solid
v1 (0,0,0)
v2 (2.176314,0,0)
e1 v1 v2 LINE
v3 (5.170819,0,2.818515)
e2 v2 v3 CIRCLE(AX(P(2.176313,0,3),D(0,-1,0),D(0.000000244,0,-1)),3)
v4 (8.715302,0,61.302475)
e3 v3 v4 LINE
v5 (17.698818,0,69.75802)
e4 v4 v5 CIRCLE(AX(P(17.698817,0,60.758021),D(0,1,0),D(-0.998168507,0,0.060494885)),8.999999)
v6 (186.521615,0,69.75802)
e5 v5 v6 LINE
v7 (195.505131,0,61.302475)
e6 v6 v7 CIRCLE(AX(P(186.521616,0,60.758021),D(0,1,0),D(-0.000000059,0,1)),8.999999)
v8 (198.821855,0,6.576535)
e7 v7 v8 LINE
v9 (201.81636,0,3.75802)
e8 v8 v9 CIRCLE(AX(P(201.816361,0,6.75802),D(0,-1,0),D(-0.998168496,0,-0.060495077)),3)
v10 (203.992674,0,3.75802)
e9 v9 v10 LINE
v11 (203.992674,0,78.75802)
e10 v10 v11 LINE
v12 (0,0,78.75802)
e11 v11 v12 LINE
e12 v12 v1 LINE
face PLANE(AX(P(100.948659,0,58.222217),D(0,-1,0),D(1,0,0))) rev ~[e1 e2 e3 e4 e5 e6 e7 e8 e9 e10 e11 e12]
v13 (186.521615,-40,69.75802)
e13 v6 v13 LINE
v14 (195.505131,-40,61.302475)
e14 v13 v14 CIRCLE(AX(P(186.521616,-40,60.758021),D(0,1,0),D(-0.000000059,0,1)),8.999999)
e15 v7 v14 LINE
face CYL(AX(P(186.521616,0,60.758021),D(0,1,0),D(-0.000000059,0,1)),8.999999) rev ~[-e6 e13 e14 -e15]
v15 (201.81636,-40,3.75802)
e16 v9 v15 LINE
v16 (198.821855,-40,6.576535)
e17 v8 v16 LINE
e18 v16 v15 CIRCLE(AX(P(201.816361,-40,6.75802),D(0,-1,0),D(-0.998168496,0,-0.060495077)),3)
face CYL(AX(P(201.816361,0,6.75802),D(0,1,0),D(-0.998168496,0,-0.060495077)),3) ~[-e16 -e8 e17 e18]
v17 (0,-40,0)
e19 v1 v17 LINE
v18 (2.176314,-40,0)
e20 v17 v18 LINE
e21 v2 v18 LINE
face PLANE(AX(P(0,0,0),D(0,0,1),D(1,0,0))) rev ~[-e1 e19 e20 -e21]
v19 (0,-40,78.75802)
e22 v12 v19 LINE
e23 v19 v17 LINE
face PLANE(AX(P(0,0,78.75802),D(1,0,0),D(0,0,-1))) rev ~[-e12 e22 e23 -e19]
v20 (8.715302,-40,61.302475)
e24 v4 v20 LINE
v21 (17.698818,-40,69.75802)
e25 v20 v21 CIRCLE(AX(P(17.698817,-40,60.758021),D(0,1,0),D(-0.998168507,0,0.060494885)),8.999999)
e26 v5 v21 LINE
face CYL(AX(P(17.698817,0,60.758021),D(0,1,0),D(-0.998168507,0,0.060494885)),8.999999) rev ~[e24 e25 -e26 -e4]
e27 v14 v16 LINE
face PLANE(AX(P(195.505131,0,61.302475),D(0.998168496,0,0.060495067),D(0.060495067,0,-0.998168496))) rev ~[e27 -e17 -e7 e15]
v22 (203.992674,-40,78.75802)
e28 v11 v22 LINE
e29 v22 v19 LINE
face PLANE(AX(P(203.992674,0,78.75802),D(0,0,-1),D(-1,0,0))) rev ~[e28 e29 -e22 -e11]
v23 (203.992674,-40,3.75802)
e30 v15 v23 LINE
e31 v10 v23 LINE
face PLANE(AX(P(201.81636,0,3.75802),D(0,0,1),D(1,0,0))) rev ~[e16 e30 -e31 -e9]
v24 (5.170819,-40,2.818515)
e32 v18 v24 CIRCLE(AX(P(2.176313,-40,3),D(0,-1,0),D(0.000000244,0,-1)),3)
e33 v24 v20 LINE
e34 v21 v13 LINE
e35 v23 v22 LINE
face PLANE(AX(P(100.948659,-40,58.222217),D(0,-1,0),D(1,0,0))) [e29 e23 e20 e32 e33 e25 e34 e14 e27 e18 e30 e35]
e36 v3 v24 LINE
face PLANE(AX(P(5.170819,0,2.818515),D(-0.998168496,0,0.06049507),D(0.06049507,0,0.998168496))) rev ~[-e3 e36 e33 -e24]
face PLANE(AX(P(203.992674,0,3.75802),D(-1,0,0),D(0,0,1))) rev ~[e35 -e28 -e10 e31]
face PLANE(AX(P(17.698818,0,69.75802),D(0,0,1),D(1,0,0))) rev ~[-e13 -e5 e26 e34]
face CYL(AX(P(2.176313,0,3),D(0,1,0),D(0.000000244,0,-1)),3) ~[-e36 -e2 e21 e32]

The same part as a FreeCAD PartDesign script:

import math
import FreeCAD as App
import Part
import Sketcher

doc = App.newDocument("Part")
body = doc.addObject("PartDesign::Body", "Body")

# Sketch on XZ plane
sketch1 = body.newObject("Sketcher::SketchObject", "Sketch")
sketch1.AttachmentSupport = (doc.getObject("XZ_Plane"), [""])
sketch1.MapMode = "FlatFace"
sketch1.addGeometry(Part.LineSegment(App.Vector(201.8, 3.8, 0), App.Vector(204, 3.8, 0)), False)
sketch1.addGeometry(Part.LineSegment(App.Vector(204, 3.8, 0), App.Vector(204, 78.8, 0)), False)
sketch1.addGeometry(Part.LineSegment(App.Vector(204, 78.8, 0), App.Vector(0, 78.8, 0)), False)
sketch1.addGeometry(Part.LineSegment(App.Vector(0, 78.8, 0), App.Vector(0, 0, 0)), False)
sketch1.addGeometry(Part.LineSegment(App.Vector(0, 0, 0), App.Vector(2.2, 0, 0)), False)
sketch1.addGeometry(Part.ArcOfCircle(Part.Circle(App.Vector(2.2, 3, 0), App.Vector(0, 0, 1), 3), math.radians(-90), math.radians(-3)), False)
sketch1.addGeometry(Part.LineSegment(App.Vector(5.2, 2.8, 0), App.Vector(8.7, 61.3, 0)), False)
sketch1.addGeometry(Part.ArcOfCircle(Part.Circle(App.Vector(17.7, 60.8, 0), App.Vector(0, 0, 1), 9), math.radians(90), math.radians(177)), False)
sketch1.addGeometry(Part.LineSegment(App.Vector(17.7, 69.8, 0), App.Vector(186.5, 69.8, 0)), False)
sketch1.addGeometry(Part.ArcOfCircle(Part.Circle(App.Vector(186.5, 60.8, 0), App.Vector(0, 0, 1), 9), math.radians(3), math.radians(90)), False)
sketch1.addGeometry(Part.LineSegment(App.Vector(195.5, 61.3, 0), App.Vector(198.8, 6.6, 0)), False)
sketch1.addGeometry(Part.ArcOfCircle(Part.Circle(App.Vector(201.8, 6.8, 0), App.Vector(0, 0, 1), 3), math.radians(-177), math.radians(-90)), False)
sketch1.addConstraint(Sketcher.Constraint("Coincident", 0, 2, 1, 1))
sketch1.addConstraint(Sketcher.Constraint("Coincident", 1, 2, 2, 1))
sketch1.addConstraint(Sketcher.Constraint("Coincident", 2, 2, 3, 1))
sketch1.addConstraint(Sketcher.Constraint("Coincident", 3, 2, 4, 1))
sketch1.addConstraint(Sketcher.Constraint("Tangent", 4, 2, 5, 1))
sketch1.addConstraint(Sketcher.Constraint("Tangent", 5, 2, 6, 1))
sketch1.addConstraint(Sketcher.Constraint("Tangent", 6, 2, 7, 2))
sketch1.addConstraint(Sketcher.Constraint("Tangent", 7, 1, 8, 1))
sketch1.addConstraint(Sketcher.Constraint("Tangent", 8, 2, 9, 2))
sketch1.addConstraint(Sketcher.Constraint("Tangent", 9, 1, 10, 1))
sketch1.addConstraint(Sketcher.Constraint("Tangent", 10, 2, 11, 1))
sketch1.addConstraint(Sketcher.Constraint("Tangent", 11, 2, 0, 1))
sketch1.addConstraint(Sketcher.Constraint("Horizontal", 0))
sketch1.addConstraint(Sketcher.Constraint("Vertical", 1))
sketch1.addConstraint(Sketcher.Constraint("Horizontal", 2))
sketch1.addConstraint(Sketcher.Constraint("Vertical", 3))
sketch1.addConstraint(Sketcher.Constraint("Horizontal", 4))
sketch1.addConstraint(Sketcher.Constraint("Horizontal", 8))
sketch1.addConstraint(Sketcher.Constraint("Coincident", 3, 2, -1, 1))
sketch1.addConstraint(Sketcher.Constraint("Equal", 7, 9))
sketch1.addConstraint(Sketcher.Constraint("Equal", 5, 11))
sketch1.addConstraint(Sketcher.Constraint("Horizontal", 6, 2, 9, 1))
sketch1.addConstraint(Sketcher.Constraint("Equal", 0, 4))
sketch1.addConstraint(Sketcher.Constraint("Radius", 5, 3.0))
sketch1.addConstraint(Sketcher.Constraint("Radius", 7, 8.999999))
sketch1.addConstraint(Sketcher.Constraint("DistanceY", 1, 1, 1, 2, 75.0))
sketch1.addConstraint(Sketcher.Constraint("DistanceY", 11, 3, 9, 3, 54.000001))
sketch1.addConstraint(Sketcher.Constraint("DistanceX", 5, 2, 7, 3, 12.527998))
sketch1.addConstraint(Sketcher.Constraint("DistanceY", 3, 2, 3, 1, 78.75802))
sketch1.addConstraint(Sketcher.Constraint("DistanceX", 7, 3, 9, 3, 168.822798))
sketch1.addConstraint(Sketcher.Constraint("DistanceX", 0, 1, 0, 2, 2.176314))
pad1 = body.newObject("PartDesign::Pad", "Pad")
pad1.Profile = sketch1
pad1.Length = 40

doc.recompute()
